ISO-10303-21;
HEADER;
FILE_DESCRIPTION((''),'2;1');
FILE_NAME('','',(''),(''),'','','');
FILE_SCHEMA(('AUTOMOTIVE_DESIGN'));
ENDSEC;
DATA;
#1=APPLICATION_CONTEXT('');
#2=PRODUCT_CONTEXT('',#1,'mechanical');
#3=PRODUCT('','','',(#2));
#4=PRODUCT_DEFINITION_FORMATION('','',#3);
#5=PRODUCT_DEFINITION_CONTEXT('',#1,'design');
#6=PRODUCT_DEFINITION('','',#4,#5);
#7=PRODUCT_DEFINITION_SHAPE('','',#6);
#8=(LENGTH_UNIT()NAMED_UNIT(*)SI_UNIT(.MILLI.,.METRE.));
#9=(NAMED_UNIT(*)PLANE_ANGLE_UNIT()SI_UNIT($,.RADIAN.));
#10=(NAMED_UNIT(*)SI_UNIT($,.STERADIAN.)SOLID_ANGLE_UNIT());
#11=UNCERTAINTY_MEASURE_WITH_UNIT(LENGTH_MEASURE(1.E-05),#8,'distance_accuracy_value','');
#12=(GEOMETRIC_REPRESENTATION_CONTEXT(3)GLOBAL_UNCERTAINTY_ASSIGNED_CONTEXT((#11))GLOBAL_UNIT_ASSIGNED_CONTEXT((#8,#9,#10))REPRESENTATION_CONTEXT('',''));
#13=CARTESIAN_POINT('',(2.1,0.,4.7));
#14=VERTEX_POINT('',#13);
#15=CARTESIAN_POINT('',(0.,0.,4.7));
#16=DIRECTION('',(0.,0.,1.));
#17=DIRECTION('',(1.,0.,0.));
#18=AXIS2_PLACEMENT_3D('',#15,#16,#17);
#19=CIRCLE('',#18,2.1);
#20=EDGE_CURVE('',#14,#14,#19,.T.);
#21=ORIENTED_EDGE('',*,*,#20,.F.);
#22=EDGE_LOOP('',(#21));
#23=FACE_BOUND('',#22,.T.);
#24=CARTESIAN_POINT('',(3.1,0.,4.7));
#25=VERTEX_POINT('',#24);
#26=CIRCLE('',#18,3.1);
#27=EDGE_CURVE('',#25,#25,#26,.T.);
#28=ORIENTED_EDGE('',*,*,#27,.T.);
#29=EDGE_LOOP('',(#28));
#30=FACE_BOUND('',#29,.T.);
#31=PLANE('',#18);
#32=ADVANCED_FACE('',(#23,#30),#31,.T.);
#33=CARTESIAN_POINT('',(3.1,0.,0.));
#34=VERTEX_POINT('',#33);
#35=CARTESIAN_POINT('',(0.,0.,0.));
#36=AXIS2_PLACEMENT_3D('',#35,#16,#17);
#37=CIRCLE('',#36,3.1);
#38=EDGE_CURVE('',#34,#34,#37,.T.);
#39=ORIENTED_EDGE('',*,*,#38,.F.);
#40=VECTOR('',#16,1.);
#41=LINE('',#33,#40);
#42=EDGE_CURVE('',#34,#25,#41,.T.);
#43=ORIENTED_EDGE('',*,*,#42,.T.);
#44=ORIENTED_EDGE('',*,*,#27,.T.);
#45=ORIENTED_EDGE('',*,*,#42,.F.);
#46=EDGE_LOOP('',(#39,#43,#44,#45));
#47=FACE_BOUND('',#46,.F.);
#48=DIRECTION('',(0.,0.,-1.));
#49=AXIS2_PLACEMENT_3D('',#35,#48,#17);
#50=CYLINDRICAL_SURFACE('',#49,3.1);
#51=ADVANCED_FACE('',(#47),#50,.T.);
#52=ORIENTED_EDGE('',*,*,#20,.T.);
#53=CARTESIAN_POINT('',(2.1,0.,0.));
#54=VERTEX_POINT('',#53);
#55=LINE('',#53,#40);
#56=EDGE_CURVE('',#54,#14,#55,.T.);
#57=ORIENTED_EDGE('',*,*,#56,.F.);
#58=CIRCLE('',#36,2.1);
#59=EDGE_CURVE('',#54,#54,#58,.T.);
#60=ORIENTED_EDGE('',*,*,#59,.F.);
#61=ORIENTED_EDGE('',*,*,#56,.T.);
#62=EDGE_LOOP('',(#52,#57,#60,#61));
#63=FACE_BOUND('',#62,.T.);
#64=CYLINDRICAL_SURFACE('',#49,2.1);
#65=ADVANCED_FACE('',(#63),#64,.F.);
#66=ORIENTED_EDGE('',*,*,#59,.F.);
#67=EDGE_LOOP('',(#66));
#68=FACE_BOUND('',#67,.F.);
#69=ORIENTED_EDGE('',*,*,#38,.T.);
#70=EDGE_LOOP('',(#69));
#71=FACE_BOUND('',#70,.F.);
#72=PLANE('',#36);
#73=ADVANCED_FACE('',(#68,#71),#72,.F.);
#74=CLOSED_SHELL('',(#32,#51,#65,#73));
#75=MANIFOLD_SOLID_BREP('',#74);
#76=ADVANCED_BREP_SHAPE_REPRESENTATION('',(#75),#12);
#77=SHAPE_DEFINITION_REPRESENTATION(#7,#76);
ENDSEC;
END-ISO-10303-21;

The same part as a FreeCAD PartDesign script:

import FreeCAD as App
import Part
import Sketcher
from FreeCAD import Vector

doc = App.newDocument("Part")
params = doc.addObject("Spreadsheet::Sheet", "Params")
for row, (alias, value) in enumerate([
    ("sketch1_diameter", "4.2 mm"),
    ("sketch1_diameter2", "6.2 mm"),
    ("pad1_length", "4.7 mm"),
], start=1):
    params.set(f"A{row}", alias)
    params.set(f"B{row}", "=" + value)
    params.setAlias(f"B{row}", alias)

body = doc.addObject("PartDesign::Body", "Body")

sketch1 = body.newObject("Sketcher::SketchObject", "Sketch")
sketch1.AttachmentSupport = (doc.getObject("XY_Plane"), [""])
sketch1.MapMode = "FlatFace"
sketch1.addGeometry([
    Part.Circle(Vector(0, 0, 0), Vector(0, 0, 1), 3.1),
    Part.Circle(Vector(0, 0, 0), Vector(0, 0, 1), 2.1),
], False)
sketch1.addConstraint([
    Sketcher.Constraint("Coincident", 0, 3, -1, 1),
    Sketcher.Constraint("Coincident", 1, 3, -1, 1),
    Sketcher.Constraint("Diameter", 1, 4.2),
    Sketcher.Constraint("Diameter", 0, 6.2),
])
sketch1.setExpression("Constraints[2]", "Params.sketch1_diameter")
sketch1.setExpression("Constraints[3]", "Params.sketch1_diameter2")
pad1 = body.newObject("PartDesign::Pad", "Pad")
pad1.Profile = sketch1
pad1.setExpression("Length", "Params.pad1_length")

doc.recompute()
